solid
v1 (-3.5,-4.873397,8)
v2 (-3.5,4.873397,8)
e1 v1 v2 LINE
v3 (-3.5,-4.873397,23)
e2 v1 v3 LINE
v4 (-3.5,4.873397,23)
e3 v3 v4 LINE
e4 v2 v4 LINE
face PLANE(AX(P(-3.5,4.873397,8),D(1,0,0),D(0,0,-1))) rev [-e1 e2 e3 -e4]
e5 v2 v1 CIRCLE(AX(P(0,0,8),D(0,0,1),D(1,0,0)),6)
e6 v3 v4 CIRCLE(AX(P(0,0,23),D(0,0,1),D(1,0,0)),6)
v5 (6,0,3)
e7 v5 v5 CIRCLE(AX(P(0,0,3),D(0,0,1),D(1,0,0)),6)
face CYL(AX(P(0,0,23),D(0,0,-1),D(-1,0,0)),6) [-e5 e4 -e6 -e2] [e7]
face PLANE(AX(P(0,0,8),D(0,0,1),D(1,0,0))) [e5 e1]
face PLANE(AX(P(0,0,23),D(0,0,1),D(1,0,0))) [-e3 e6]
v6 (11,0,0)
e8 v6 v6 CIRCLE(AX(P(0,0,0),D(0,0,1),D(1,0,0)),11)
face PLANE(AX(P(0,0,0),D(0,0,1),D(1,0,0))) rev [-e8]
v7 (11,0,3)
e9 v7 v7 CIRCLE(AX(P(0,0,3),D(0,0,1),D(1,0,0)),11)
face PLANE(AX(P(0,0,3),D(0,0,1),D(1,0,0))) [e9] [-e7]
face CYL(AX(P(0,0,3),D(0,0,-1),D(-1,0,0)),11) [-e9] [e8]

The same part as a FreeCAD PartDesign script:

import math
import FreeCAD as App
import Part
import Sketcher
Q = App.Units.Quantity

doc = App.newDocument("Part")
body = doc.addObject("PartDesign::Body", "Body")

# Sketch on XY plane
sketch1 = doc.addObject("Sketcher::SketchObject", "Sketch")
body.addObject(sketch1)
sketch1.AttachmentSupport = (doc.XY_Plane, [""])
sketch1.MapMode = "FlatFace"
sketch1.addGeometry(Part.Circle(App.Vector(0, 0, 0), App.Vector(0, 0, 1), 11), False)
sketch1.addConstraint([
    Sketcher.Constraint("Coincident", 0, 3, -1, 1),
    Sketcher.Constraint("Diameter", 0, Q("22 mm")),
])
pad1 = doc.addObject("PartDesign::Pad", "Pad")
body.addObject(pad1)
pad1.Profile = sketch1
pad1.Length = 3

# Sketch on XY plane
sketch2 = doc.addObject("Sketcher::SketchObject", "Sketch001")
body.addObject(sketch2)
sketch2.AttachmentSupport = (doc.XY_Plane, [""])
sketch2.MapMode = "FlatFace"
sketch2.AttachmentOffset = App.Placement(App.Vector(0, 0, 3), App.Rotation())
sketch2.addGeometry(Part.Circle(App.Vector(0, 0, 0), App.Vector(0, 0, 1), 6), False)
sketch2.addConstraint([
    Sketcher.Constraint("Coincident", 0, 3, -1, 1),
    Sketcher.Constraint("Diameter", 0, Q("12 mm")),
])
pad2 = doc.addObject("PartDesign::Pad", "Pad001")
body.addObject(pad2)
pad2.Profile = sketch2
pad2.Length = 20

# Sketch on XY plane
sketch3 = doc.addObject("Sketcher::SketchObject", "Sketch002")
body.addObject(sketch3)
sketch3.AttachmentSupport = (doc.XY_Plane, [""])
sketch3.MapMode = "FlatFace"
sketch3.AttachmentOffset = App.Placement(App.Vector(0, 0, 23), App.Rotation())
sketch3.addGeometry([
    Part.LineSegment(App.Vector(-3.5, -4.873397, 0), App.Vector(-3.5, 4.873397, 0)),
    Part.ArcOfCircle(Part.Circle(App.Vector(0, 0, 0), App.Vector(0, 0, 1), 6), math.radians(125.685335), math.radians(234.314665)),
], False)
sketch3.addConstraint([
    Sketcher.Constraint("Coincident", 0, 1, 1, 2),
    Sketcher.Constraint("Coincident", 1, 1, 0, 2),
    Sketcher.Constraint("Vertical", 0),
    Sketcher.Constraint("Coincident", 1, 3, -1, 1),
    Sketcher.Constraint("Radius", 1, Q("6 mm")),
    Sketcher.Constraint("DistanceX", 0, 1, -1, 1, Q("3.5 mm")),
])
pocket1 = doc.addObject("PartDesign::Pocket", "Pocket")
body.addObject(pocket1)
pocket1.Profile = sketch3
pocket1.Length = 15

doc.recompute()
